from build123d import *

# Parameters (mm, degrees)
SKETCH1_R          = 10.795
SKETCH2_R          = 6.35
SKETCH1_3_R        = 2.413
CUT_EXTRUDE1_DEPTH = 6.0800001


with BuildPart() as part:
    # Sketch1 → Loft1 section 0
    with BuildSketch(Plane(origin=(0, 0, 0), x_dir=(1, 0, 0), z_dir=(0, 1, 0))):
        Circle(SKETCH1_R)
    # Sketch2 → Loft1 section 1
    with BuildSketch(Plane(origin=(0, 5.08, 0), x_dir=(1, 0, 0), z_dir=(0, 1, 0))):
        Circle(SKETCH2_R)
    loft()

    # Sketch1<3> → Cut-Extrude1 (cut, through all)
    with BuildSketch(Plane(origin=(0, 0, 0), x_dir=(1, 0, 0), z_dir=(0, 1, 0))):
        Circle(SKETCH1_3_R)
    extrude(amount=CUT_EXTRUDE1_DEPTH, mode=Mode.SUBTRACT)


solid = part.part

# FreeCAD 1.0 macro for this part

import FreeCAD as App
import Part
import Sketcher
from FreeCAD import Vector
Q = App.Units.Quantity

doc = App.newDocument("Part")
params = doc.addObject("Spreadsheet::Sheet", "Params")
for row, (alias, value) in enumerate([
    ("sketch1_diameter", "0.85 in"),
    ("sketch2_diameter", "0.5 in"),
    ("sketch3_diameter", "0.19 in"),
], start=1):
    params.set(f"A{row}", alias)
    params.set(f"B{row}", "=" + value)
    params.setAlias(f"B{row}", alias)

body = doc.addObject("PartDesign::Body", "Body")

sketch1 = body.newObject("Sketcher::SketchObject", "Sketch")
sketch1.AttachmentSupport = (doc.getObject("XZ_Plane"), [""])
sketch1.MapMode = "FlatFace"
sketch1.addGeometry(Part.Circle(Vector(0, 0, 0), Vector(0, 0, 1), 10.795), False)
sketch1.addConstraint([
    Sketcher.Constraint("Coincident", 0, 3, -1, 1),
    Sketcher.Constraint("Diameter", 0, Q("0.85 in")),
])
sketch1.setExpression("Constraints[1]", "Params.sketch1_diameter")

sketch2 = body.newObject("Sketcher::SketchObject", "Sketch001")
sketch2.AttachmentSupport = (doc.getObject("XZ_Plane"), [""])
sketch2.MapMode = "FlatFace"
sketch2.AttachmentOffset = App.Placement(Vector(0, 0, -0.2 * 25.4), App.Rotation())
sketch2.addGeometry(Part.Circle(Vector(0, 0, 0), Vector(0, 0, 1), 6.35), False)
sketch2.addConstraint([
    Sketcher.Constraint("Coincident", 0, 3, -1, 1),
    Sketcher.Constraint("Diameter", 0, Q("0.5 in")),
])
sketch2.setExpression("Constraints[1]", "Params.sketch2_diameter")

additiveloft = body.newObject("PartDesign::AdditiveLoft", "AdditiveLoft")
additiveloft.Profile = sketch1
additiveloft.Sections = [sketch2]

sketch3 = body.newObject("Sketcher::SketchObject", "Sketch002")
sketch3.AttachmentSupport = (doc.getObject("XZ_Plane"), [""])
sketch3.MapMode = "FlatFace"
sketch3.addGeometry(Part.Circle(Vector(0, 0, 0), Vector(0, 0, 1), 2.413), False)
sketch3.addConstraint([
    Sketcher.Constraint("Coincident", 0, 3, -1, 1),
    Sketcher.Constraint("Diameter", 0, Q("0.19 in")),
])
sketch3.setExpression("Constraints[1]", "Params.sketch3_diameter")
pocket1 = body.newObject("PartDesign::Pocket", "Pocket")
pocket1.Profile = sketch3
pocket1.Type = "ThroughAll"

doc.recompute()
